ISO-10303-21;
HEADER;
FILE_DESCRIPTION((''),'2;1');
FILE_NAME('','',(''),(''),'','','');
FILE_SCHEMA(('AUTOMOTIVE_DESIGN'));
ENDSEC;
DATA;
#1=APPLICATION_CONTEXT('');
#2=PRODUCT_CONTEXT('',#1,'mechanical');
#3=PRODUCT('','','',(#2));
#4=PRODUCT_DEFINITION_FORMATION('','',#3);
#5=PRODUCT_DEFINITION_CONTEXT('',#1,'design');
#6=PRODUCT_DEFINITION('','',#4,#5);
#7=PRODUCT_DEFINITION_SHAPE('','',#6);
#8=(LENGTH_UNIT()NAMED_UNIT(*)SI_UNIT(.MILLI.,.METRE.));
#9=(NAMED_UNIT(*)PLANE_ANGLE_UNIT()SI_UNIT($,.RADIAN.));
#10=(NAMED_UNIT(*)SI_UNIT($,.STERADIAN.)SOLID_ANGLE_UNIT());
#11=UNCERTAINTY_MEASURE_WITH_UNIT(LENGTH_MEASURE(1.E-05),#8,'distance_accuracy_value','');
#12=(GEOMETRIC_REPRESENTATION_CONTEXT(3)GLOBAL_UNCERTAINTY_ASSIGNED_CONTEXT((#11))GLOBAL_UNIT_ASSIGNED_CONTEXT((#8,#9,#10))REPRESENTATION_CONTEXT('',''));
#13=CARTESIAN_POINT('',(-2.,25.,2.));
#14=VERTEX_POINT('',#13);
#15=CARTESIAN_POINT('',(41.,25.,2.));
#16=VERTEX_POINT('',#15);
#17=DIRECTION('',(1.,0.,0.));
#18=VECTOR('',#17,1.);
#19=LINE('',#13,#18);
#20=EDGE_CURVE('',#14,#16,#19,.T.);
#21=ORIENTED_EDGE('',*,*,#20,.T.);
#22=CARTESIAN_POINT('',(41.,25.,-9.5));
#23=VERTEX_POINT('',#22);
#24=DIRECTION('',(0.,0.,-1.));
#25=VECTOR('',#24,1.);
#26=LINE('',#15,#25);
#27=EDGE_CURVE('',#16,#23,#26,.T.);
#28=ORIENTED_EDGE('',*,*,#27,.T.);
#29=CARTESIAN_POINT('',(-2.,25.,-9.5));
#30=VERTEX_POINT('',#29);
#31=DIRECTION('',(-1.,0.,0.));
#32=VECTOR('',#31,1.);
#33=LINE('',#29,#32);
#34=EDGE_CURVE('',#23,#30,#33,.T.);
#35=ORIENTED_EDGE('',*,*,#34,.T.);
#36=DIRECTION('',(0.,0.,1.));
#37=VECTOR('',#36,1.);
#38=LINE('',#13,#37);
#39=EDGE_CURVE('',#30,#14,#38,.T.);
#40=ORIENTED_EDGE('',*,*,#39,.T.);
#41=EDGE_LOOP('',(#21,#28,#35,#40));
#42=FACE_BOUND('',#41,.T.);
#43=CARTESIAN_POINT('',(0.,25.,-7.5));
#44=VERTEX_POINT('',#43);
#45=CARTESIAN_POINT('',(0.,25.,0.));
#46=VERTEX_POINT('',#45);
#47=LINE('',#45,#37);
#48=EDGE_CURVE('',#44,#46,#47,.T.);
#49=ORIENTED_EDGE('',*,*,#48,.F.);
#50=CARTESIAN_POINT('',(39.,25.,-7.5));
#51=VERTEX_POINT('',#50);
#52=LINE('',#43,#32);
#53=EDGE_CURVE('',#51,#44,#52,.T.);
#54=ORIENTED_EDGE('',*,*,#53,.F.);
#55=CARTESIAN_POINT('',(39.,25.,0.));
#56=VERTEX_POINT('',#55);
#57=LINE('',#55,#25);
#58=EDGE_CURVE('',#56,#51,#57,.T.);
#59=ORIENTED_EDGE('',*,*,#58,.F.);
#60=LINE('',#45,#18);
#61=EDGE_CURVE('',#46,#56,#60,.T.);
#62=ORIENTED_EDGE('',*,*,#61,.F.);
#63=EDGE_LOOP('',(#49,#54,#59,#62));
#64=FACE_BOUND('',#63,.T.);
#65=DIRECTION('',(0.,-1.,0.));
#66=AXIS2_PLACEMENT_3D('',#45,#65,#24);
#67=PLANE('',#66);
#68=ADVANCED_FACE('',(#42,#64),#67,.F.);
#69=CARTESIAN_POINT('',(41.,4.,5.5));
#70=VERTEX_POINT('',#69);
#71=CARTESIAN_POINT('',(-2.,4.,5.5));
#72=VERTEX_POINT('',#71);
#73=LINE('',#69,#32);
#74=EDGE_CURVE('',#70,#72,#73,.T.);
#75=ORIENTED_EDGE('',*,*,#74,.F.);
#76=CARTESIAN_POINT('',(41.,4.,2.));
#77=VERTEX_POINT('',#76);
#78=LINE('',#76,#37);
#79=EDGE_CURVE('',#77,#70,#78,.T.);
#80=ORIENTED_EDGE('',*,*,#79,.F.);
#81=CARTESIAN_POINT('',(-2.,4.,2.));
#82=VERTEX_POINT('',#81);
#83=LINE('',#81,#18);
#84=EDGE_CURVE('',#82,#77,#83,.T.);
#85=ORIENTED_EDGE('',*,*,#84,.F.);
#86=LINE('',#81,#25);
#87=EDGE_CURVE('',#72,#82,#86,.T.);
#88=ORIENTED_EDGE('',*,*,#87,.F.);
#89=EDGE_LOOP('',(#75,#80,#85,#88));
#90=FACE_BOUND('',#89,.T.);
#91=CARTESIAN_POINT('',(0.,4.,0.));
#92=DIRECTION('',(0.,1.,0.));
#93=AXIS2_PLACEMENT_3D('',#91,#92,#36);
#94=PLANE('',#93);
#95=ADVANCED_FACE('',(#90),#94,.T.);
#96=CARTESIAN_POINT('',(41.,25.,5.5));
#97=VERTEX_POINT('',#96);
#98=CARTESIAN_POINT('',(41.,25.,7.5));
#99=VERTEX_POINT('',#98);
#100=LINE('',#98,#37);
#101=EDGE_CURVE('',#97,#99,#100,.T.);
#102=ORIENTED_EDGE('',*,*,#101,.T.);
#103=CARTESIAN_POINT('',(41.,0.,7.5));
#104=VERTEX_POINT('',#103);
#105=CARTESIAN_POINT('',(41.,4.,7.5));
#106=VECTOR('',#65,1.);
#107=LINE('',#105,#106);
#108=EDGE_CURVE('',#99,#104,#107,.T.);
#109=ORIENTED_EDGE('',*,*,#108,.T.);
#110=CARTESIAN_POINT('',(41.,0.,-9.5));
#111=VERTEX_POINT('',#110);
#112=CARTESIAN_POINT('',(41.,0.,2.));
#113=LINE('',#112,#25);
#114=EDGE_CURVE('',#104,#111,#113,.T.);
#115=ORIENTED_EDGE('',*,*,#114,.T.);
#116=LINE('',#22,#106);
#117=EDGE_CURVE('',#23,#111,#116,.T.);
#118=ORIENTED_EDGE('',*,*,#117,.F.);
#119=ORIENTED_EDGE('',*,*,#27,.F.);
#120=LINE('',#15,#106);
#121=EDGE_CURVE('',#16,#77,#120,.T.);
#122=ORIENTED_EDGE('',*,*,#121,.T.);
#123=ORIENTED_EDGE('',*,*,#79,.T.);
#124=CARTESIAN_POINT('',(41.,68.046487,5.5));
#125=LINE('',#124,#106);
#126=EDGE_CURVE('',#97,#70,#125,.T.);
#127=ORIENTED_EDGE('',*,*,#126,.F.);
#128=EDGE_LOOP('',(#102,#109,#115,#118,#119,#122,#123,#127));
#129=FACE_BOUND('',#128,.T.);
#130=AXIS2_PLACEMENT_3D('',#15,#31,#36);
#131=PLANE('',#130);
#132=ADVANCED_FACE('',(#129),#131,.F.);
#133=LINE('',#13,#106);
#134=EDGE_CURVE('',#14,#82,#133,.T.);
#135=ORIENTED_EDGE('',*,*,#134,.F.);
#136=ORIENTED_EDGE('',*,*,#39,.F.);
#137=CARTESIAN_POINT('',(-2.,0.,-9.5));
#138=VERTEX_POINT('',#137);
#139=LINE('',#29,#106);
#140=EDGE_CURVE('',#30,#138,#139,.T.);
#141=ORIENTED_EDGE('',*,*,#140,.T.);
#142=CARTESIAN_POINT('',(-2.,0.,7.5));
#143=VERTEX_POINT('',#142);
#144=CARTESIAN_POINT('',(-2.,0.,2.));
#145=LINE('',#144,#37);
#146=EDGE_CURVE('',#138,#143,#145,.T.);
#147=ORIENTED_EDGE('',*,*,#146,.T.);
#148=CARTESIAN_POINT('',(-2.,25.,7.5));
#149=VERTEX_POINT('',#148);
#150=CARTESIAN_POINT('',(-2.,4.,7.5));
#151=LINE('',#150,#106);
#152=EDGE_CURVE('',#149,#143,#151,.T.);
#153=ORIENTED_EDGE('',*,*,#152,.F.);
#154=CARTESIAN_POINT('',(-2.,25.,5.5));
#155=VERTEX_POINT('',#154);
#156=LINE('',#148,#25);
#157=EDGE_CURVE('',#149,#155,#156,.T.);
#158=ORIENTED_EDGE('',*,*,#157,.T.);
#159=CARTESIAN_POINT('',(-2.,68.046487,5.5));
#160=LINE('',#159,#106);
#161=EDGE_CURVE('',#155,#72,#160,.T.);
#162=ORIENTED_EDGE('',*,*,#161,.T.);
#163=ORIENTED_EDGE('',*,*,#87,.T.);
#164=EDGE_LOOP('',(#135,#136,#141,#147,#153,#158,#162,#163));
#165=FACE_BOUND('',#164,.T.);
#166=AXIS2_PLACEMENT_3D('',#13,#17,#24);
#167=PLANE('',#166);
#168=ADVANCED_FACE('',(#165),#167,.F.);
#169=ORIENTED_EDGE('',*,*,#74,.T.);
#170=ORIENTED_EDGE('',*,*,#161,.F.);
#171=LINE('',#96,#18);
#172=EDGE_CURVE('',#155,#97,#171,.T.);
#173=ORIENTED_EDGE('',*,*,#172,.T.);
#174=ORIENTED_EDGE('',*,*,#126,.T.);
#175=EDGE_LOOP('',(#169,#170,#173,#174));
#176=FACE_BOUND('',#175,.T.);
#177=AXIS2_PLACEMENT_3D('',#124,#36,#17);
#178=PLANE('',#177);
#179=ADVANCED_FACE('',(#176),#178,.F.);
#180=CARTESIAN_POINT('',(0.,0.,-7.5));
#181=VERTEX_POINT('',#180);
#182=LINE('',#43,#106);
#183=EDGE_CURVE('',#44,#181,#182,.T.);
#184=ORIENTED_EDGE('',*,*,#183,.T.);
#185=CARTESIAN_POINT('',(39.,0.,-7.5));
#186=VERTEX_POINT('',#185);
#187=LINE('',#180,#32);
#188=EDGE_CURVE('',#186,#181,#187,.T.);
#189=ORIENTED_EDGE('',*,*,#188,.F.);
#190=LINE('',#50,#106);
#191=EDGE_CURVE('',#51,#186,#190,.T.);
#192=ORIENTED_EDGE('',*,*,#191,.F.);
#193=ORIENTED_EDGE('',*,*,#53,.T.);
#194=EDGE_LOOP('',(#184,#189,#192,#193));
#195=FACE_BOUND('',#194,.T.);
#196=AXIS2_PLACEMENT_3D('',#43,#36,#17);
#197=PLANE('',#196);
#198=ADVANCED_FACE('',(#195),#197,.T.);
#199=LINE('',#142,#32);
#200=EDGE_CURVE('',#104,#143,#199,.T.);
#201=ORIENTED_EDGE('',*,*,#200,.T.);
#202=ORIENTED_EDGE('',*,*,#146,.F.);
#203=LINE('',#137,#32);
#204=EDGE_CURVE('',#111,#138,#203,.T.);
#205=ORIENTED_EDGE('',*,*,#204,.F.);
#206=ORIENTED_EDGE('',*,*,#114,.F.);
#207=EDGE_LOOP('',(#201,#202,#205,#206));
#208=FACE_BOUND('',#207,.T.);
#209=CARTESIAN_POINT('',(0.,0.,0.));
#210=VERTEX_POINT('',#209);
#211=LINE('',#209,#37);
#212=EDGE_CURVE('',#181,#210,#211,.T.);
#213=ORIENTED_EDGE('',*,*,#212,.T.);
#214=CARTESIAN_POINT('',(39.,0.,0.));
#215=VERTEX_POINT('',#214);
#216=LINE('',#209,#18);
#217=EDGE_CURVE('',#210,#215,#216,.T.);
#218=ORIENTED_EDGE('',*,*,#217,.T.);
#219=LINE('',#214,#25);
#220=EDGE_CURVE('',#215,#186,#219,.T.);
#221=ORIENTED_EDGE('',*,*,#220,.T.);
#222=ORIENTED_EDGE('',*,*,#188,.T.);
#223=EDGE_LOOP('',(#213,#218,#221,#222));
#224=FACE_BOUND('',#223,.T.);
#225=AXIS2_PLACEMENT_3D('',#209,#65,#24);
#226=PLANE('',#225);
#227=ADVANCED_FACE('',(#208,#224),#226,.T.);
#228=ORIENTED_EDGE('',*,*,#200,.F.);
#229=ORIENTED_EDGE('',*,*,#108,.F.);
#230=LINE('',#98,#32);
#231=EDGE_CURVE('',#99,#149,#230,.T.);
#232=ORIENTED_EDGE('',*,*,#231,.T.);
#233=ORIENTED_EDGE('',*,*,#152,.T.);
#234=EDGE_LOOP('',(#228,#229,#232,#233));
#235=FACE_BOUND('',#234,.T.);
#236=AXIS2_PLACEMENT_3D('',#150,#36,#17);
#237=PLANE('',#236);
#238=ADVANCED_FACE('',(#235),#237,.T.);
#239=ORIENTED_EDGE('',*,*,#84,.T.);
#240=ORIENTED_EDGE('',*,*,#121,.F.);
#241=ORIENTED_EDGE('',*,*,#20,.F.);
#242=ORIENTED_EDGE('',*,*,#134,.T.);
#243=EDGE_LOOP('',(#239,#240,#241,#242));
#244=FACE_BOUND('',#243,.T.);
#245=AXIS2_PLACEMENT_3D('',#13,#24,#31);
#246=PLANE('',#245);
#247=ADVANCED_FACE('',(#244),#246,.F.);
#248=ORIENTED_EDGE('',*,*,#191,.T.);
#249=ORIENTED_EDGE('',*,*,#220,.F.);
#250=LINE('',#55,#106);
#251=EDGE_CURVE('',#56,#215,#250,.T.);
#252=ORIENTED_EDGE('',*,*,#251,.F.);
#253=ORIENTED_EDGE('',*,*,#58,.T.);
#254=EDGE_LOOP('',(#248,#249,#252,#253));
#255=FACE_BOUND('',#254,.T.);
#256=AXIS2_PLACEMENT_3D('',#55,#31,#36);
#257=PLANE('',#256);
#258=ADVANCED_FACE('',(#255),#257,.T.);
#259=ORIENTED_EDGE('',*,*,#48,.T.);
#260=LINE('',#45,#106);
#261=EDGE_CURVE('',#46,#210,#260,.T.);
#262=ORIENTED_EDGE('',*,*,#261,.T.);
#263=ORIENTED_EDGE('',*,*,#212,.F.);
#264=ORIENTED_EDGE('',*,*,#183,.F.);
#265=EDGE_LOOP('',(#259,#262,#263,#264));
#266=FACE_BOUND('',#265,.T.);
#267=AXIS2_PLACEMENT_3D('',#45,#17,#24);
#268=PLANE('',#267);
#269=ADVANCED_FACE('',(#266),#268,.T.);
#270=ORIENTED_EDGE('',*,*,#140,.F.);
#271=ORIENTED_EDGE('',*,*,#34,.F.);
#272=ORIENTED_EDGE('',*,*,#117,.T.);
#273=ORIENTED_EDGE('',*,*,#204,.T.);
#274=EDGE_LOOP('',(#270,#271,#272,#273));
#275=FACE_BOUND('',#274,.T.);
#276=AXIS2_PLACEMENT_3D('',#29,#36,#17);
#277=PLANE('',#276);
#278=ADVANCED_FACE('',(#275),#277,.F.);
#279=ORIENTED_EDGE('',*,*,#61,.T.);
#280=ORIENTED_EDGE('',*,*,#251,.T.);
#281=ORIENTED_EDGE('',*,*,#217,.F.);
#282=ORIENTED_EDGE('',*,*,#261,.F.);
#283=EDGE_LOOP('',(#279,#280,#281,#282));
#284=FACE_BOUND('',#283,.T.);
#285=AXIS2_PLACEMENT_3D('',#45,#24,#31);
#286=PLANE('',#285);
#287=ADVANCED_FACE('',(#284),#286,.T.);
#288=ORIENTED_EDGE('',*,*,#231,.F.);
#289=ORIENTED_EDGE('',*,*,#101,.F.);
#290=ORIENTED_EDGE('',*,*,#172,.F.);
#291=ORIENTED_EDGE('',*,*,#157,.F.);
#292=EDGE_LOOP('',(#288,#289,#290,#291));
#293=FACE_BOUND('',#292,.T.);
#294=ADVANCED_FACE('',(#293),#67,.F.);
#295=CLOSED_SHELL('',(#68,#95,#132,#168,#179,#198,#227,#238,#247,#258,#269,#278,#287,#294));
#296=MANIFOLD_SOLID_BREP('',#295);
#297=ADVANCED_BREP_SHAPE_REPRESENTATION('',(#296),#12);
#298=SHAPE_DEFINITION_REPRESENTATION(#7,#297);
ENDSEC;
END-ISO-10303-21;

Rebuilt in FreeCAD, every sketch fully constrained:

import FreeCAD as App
import Part
import Sketcher


def add_polygon(sketch, points):
    """Adds a closed chain of lines whose ends are joined by coincident constraints."""
    first, n = sketch.GeometryCount, len(points)
    for a, b in zip(points, points[1:] + points[:1]):
        sketch.addGeometry(Part.LineSegment(App.Vector(*a, 0), App.Vector(*b, 0)), False)
    for i in range(n):
        sketch.addConstraint(Sketcher.Constraint("Coincident", first + i, 2, first + (i + 1) % n, 1))

doc = App.newDocument("Part")
body = doc.addObject("PartDesign::Body", "Body")

sketch1 = body.newObject("Sketcher::SketchObject", "Sketch")
sketch1.AttachmentSupport = (doc.getObject("XZ_Plane"), [""])
sketch1.MapMode = "FlatFace"
add_polygon(sketch1, [(-2, -10), (-2, 2), (41, 2), (41, -10)])
add_polygon(sketch1, [(39, 0), (0, 0), (0, -8), (39, -8)])
sketch1.addConstraint(Sketcher.Constraint("Vertical", 0))
sketch1.addConstraint(Sketcher.Constraint("Horizontal", 1))
sketch1.addConstraint(Sketcher.Constraint("Vertical", 2))
sketch1.addConstraint(Sketcher.Constraint("Horizontal", 3))
sketch1.addConstraint(Sketcher.Constraint("Horizontal", 4))
sketch1.addConstraint(Sketcher.Constraint("Vertical", 5))
sketch1.addConstraint(Sketcher.Constraint("Horizontal", 6))
sketch1.addConstraint(Sketcher.Constraint("Vertical", 7))
sketch1.addConstraint(Sketcher.Constraint("Coincident", 4, 2, -1, 1))
sketch1.addConstraint(Sketcher.Constraint("DistanceX", 1, 1, 1, 2, 43.0))
sketch1.addConstraint(Sketcher.Constraint("DistanceX", 4, 2, 4, 1, 39.0))
sketch1.addConstraint(Sketcher.Constraint("DistanceY", 0, 1, 0, 2, 11.5))
sketch1.addConstraint(Sketcher.Constraint("DistanceY", 5, 2, 5, 1, 7.5))
sketch1.addConstraint(Sketcher.Constraint("DistanceX", 0, 2, -1, 1, 2.0))
sketch1.addConstraint(Sketcher.Constraint("DistanceY", -1, 1, 0, 2, 2.0))
pad1 = body.newObject("PartDesign::Pad", "Pad")
pad1.Profile = sketch1
pad1.Length = 25
pad1.Reversed = True

sketch2 = body.newObject("Sketcher::SketchObject", "Sketch001")
sketch2.AttachmentSupport = (doc.getObject("XZ_Plane"), [""])
sketch2.MapMode = "FlatFace"
add_polygon(sketch2, [(-2, 8), (-2, 2), (41, 2), (41, 8)])
sketch2.addConstraint(Sketcher.Constraint("Vertical", 0))
sketch2.addConstraint(Sketcher.Constraint("Horizontal", 1))
sketch2.addConstraint(Sketcher.Constraint("Vertical", 2))
sketch2.addConstraint(Sketcher.Constraint("Horizontal", 3))
sketch2.addConstraint(Sketcher.Constraint("DistanceX", 1, 1, 1, 2, 43.0))
sketch2.addConstraint(Sketcher.Constraint("DistanceY", 0, 2, 0, 1, 5.5))
sketch2.addConstraint(Sketcher.Constraint("DistanceX", 0, 2, -1, 1, 2.0))
sketch2.addConstraint(Sketcher.Constraint("DistanceY", -1, 1, 0, 2, 2.0))
pad2 = body.newObject("PartDesign::Pad", "Pad001")
pad2.Profile = sketch2
pad2.Length = 4
pad2.Reversed = True

sketch3 = body.newObject("Sketcher::SketchObject", "Sketch002")
sketch3.AttachmentSupport = (doc.getObject("XZ_Plane"), [""])
sketch3.MapMode = "FlatFace"
sketch3.AttachmentOffset = App.Placement(App.Vector(0, 0, -4), App.Rotation())
add_polygon(sketch3, [(-2, 5.5), (-2, 7.5), (41, 7.5), (41, 5.5)])
sketch3.addConstraint(Sketcher.Constraint("Vertical", 0))
sketch3.addConstraint(Sketcher.Constraint("Horizontal", 1))
sketch3.addConstraint(Sketcher.Constraint("Vertical", 2))
sketch3.addConstraint(Sketcher.Constraint("Horizontal", 3))
sketch3.addConstraint(Sketcher.Constraint("DistanceX", 1, 1, 1, 2, 43.0))
sketch3.addConstraint(Sketcher.Constraint("DistanceY", 0, 1, 0, 2, 2.0))
sketch3.addConstraint(Sketcher.Constraint("DistanceX", 0, 2, -1, 1, 2.0))
sketch3.addConstraint(Sketcher.Constraint("DistanceY", -1, 1, 0, 2, 7.5))
pad3 = body.newObject("PartDesign::Pad", "Pad002")
pad3.Profile = sketch3
pad3.Length = 21
pad3.Reversed = True

doc.recompute()
